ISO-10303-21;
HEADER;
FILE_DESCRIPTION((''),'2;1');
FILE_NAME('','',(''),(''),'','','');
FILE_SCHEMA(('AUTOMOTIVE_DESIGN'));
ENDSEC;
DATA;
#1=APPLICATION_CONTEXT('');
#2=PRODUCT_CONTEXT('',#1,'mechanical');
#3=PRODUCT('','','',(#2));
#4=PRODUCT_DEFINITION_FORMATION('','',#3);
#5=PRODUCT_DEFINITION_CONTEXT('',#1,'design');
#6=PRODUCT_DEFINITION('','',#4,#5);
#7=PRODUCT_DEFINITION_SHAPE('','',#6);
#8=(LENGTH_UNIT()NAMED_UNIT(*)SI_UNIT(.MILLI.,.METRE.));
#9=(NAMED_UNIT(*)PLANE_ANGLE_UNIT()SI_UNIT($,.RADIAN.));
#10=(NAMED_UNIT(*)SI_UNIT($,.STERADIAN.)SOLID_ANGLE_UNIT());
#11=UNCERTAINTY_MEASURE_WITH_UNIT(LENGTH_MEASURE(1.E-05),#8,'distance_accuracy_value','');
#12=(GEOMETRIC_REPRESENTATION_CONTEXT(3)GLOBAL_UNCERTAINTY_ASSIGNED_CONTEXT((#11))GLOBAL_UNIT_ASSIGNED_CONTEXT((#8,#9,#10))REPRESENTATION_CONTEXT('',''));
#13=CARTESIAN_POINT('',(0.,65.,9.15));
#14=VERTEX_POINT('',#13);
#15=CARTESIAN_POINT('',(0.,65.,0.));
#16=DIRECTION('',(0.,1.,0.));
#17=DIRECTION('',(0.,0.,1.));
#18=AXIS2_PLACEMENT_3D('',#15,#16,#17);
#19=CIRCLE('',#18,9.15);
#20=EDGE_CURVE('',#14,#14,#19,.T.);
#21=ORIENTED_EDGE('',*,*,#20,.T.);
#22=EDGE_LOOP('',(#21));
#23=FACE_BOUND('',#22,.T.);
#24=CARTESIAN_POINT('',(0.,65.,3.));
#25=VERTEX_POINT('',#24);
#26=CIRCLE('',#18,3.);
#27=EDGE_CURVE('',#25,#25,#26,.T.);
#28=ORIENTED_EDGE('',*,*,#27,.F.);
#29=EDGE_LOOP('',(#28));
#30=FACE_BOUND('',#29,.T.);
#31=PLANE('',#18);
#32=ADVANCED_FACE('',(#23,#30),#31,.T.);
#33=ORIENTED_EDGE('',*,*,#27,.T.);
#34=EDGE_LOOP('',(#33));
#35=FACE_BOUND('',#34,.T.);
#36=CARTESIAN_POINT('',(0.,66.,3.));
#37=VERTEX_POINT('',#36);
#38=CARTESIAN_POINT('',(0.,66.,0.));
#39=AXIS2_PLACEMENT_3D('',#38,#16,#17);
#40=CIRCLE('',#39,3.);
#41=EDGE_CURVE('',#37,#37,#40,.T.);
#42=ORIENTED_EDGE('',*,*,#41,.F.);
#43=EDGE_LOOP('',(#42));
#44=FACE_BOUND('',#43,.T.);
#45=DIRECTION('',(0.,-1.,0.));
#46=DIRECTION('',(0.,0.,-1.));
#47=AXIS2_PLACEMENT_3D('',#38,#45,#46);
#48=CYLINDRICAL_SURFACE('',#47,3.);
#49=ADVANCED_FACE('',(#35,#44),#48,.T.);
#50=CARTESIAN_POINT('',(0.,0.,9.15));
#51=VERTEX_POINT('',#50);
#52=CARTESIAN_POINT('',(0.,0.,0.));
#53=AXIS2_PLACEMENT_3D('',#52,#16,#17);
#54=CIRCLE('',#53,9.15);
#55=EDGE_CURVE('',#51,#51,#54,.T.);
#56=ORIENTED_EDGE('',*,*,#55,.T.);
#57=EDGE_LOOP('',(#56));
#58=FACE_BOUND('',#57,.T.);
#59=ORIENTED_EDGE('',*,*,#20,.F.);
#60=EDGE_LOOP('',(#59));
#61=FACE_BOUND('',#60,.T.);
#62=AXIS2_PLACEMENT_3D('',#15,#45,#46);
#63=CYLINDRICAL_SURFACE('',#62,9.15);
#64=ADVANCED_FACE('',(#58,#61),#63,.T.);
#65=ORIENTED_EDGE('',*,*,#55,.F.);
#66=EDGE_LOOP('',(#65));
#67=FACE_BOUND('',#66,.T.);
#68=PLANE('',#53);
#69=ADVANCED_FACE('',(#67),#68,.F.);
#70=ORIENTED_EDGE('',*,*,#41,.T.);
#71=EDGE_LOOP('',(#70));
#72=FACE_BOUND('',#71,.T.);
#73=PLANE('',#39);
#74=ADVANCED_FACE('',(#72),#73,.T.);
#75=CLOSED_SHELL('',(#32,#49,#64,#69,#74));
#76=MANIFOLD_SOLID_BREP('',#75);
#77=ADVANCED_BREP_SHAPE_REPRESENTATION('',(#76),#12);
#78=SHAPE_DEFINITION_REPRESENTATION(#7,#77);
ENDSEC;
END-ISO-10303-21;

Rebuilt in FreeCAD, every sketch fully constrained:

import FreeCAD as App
import Part
import Sketcher

V = App.Vector

doc = App.newDocument("Part")
body = doc.addObject("PartDesign::Body", "Body")

# Sketch on XZ plane
sketch1 = body.newObject("Sketcher::SketchObject", "Sketch")
sketch1.AttachmentSupport = (doc.getObject("XZ_Plane"), [""])
sketch1.MapMode = "FlatFace"
sketch1.addGeometry(Part.Circle(V(0, 0, 0), V(0, 0, 1), 9), False)
sketch1.addConstraint(Sketcher.Constraint("Coincident", 0, 3, -1, 1))
sketch1.addConstraint(Sketcher.Constraint("Diameter", 0, 18.3))
pad1 = body.newObject("PartDesign::Pad", "Pad")
pad1.Profile = sketch1
pad1.Length = 65
pad1.Reversed = True

# Sketch on XZ plane
sketch2 = body.newObject("Sketcher::SketchObject", "Sketch001")
sketch2.AttachmentSupport = (doc.getObject("XZ_Plane"), [""])
sketch2.MapMode = "FlatFace"
sketch2.AttachmentOffset = App.Placement(V(0, 0, -65), App.Rotation())
sketch2.addGeometry(Part.Circle(V(0, 0, 0), V(0, 0, 1), 3), False)
sketch2.addConstraint(Sketcher.Constraint("Coincident", 0, 3, -1, 1))
sketch2.addConstraint(Sketcher.Constraint("Diameter", 0, 6.0))
pad2 = body.newObject("PartDesign::Pad", "Pad001")
pad2.Profile = sketch2
pad2.Length = 1
pad2.Reversed = True

doc.recompute()
